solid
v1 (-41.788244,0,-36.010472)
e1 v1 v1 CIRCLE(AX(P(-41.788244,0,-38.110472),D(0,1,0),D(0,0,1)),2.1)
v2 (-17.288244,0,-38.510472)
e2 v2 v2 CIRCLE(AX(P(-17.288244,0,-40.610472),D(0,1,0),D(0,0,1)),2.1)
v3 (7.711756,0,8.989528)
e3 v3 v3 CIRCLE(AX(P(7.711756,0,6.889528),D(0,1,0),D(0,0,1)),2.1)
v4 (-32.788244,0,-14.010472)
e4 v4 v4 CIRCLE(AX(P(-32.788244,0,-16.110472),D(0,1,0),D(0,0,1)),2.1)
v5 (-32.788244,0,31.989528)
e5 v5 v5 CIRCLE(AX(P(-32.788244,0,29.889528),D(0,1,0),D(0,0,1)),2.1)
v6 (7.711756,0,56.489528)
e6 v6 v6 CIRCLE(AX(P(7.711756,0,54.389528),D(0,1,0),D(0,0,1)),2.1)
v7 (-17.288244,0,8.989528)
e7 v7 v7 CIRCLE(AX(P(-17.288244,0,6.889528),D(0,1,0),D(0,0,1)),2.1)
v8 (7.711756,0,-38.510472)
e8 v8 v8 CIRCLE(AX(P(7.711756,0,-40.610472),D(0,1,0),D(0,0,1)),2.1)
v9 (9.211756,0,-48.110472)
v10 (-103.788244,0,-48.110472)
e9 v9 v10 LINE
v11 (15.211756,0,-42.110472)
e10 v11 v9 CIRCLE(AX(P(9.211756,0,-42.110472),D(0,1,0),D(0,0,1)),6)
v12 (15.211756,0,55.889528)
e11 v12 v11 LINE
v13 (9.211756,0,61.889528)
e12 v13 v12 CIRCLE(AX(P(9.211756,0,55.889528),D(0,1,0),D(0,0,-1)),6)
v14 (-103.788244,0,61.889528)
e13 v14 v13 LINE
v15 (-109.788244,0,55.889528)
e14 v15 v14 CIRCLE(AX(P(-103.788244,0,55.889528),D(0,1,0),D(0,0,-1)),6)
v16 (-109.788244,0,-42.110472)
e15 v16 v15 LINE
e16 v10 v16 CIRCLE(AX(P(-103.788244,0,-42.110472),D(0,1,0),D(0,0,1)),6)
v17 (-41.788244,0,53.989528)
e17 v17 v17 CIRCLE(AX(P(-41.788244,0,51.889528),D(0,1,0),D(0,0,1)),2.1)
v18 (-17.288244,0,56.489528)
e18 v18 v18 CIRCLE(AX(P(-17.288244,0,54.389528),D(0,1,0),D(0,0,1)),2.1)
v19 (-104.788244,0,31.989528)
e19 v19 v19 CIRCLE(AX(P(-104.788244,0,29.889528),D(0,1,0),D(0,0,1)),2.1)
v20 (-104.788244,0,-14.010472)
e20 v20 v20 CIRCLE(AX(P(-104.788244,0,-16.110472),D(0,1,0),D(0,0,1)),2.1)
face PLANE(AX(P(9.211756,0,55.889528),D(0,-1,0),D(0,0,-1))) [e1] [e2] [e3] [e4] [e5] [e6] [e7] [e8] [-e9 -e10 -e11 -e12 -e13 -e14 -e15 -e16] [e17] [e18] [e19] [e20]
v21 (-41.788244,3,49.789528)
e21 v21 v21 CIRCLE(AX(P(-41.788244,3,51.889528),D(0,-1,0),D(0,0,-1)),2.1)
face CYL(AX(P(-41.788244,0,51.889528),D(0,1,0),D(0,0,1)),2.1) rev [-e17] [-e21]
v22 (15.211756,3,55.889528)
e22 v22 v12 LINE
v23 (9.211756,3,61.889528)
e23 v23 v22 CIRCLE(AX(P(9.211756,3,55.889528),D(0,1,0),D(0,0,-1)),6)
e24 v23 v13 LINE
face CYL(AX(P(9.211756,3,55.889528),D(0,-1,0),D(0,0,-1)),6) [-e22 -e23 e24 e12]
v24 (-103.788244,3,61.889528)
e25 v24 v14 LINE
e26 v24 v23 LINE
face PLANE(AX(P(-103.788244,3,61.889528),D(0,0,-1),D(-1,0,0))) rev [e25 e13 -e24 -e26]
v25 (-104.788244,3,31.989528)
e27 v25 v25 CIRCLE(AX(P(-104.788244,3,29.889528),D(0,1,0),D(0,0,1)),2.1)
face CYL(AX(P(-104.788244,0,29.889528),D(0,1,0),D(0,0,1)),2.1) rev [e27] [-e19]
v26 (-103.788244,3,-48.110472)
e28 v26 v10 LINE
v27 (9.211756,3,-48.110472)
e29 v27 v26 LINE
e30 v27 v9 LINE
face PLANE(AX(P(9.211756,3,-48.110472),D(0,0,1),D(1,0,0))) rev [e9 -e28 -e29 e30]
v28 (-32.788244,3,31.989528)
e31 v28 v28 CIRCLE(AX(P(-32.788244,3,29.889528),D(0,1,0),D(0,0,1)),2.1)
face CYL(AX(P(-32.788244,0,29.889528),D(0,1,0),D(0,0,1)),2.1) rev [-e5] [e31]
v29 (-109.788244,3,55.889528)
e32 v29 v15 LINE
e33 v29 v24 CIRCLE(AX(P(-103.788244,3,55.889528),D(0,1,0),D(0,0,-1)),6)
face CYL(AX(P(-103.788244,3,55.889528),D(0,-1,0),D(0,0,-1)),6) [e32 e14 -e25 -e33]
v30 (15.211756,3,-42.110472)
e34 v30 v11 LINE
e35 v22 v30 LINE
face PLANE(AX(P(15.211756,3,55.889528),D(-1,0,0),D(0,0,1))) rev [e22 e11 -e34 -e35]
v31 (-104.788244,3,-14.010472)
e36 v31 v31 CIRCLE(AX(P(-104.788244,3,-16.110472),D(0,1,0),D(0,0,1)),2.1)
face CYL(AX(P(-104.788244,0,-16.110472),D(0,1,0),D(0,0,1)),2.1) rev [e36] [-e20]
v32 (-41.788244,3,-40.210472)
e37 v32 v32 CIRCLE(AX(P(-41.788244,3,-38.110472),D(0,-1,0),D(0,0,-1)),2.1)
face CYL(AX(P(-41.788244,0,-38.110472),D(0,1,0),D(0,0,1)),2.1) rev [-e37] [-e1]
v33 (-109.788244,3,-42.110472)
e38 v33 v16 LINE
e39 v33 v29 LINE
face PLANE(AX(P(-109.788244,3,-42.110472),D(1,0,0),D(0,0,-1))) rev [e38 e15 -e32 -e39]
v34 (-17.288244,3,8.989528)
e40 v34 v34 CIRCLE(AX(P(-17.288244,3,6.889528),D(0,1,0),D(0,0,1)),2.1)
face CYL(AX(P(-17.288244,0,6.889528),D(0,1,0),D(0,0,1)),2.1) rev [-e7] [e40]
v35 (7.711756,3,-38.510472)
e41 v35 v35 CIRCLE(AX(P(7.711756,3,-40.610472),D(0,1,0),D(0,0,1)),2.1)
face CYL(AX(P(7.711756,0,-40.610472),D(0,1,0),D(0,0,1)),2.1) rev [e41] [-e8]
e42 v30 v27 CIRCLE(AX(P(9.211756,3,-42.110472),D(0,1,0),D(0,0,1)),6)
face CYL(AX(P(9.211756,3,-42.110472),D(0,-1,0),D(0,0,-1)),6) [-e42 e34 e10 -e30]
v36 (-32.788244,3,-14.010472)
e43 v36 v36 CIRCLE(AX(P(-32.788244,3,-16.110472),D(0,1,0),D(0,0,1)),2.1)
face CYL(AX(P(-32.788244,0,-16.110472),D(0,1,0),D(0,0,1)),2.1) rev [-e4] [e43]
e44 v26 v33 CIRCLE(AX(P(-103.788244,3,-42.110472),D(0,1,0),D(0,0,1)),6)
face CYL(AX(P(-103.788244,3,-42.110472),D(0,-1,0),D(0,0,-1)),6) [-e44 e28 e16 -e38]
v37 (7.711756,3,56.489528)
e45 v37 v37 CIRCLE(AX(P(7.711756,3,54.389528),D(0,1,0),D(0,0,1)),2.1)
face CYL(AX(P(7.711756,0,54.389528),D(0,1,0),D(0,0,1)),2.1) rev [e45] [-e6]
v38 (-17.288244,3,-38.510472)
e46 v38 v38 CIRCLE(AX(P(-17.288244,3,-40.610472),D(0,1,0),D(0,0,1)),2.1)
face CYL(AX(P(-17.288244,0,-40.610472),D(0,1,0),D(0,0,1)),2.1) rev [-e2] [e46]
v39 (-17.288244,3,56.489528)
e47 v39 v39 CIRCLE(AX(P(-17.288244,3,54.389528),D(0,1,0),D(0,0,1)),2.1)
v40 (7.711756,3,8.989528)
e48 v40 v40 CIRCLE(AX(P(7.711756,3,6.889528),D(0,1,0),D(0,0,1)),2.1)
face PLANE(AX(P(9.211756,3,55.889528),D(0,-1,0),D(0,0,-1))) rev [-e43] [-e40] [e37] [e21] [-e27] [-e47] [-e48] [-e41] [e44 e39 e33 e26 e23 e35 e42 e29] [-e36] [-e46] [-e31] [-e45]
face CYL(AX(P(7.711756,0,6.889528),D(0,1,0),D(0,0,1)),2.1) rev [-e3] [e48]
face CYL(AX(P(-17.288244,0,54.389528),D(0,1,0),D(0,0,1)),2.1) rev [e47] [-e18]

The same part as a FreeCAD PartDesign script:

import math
import FreeCAD as App
import Part
import Sketcher
Q = App.Units.Quantity

doc = App.newDocument("Part")
params = doc.addObject("Spreadsheet::Sheet", "Params")
for row, (alias, value) in enumerate([
    ("sketch1_radius", "6 mm"),
    ("sketch1_width", "113 mm"),
    ("sketch1_height", "98 mm"),
    ("pad1_length", "3 mm"),
    ("sketch2_diameter", "4.2 mm"),
    ("sketch3_diameter", "4.2 mm"),
    ("sketch4_diameter", "4.2 mm"),
], start=1):
    params.set(f"A{row}", alias)
    params.set(f"B{row}", "=" + value)
    params.setAlias(f"B{row}", alias)

body = doc.addObject("PartDesign::Body", "Body")

# Sketch on XZ plane
sketch1 = doc.addObject("Sketcher::SketchObject", "Sketch")
body.addObject(sketch1)
sketch1.AttachmentSupport = (doc.XZ_Plane, [""])
sketch1.MapMode = "FlatFace"
sketch1.addGeometry(Part.LineSegment(App.Vector(-109.788244, -42.110472, 0), App.Vector(-109.788244, 55.889528, 0)), False)
sketch1.addGeometry(Part.ArcOfCircle(Part.Circle(App.Vector(-103.788244, 55.889528, 0), App.Vector(0, 0, 1), 6), math.radians(90), math.radians(180)), False)
sketch1.addGeometry(Part.LineSegment(App.Vector(-103.788244, 61.889528, 0), App.Vector(9.211756, 61.889528, 0)), False)
sketch1.addGeometry(Part.ArcOfCircle(Part.Circle(App.Vector(9.211756, 55.889528, 0), App.Vector(0, 0, 1), 6), math.radians(0), math.radians(90)), False)
sketch1.addGeometry(Part.LineSegment(App.Vector(15.211756, 55.889528, 0), App.Vector(15.211756, -42.110472, 0)), False)
sketch1.addGeometry(Part.ArcOfCircle(Part.Circle(App.Vector(9.211756, -42.110472, 0), App.Vector(0, 0, 1), 6), math.radians(-90), math.radians(0)), False)
sketch1.addGeometry(Part.LineSegment(App.Vector(9.211756, -48.110472, 0), App.Vector(-103.788244, -48.110472, 0)), False)
sketch1.addGeometry(Part.ArcOfCircle(Part.Circle(App.Vector(-103.788244, -42.110472, 0), App.Vector(0, 0, 1), 6), math.radians(180), math.radians(270)), False)
sketch1.addConstraint(Sketcher.Constraint("Tangent", 0, 2, 1, 2))
sketch1.addConstraint(Sketcher.Constraint("Tangent", 1, 1, 2, 1))
sketch1.addConstraint(Sketcher.Constraint("Tangent", 2, 2, 3, 2))
sketch1.addConstraint(Sketcher.Constraint("Tangent", 3, 1, 4, 1))
sketch1.addConstraint(Sketcher.Constraint("Tangent", 4, 2, 5, 2))
sketch1.addConstraint(Sketcher.Constraint("Tangent", 5, 1, 6, 1))
sketch1.addConstraint(Sketcher.Constraint("Tangent", 6, 2, 7, 2))
sketch1.addConstraint(Sketcher.Constraint("Tangent", 7, 1, 0, 1))
sketch1.addConstraint(Sketcher.Constraint("Vertical", 0))
sketch1.addConstraint(Sketcher.Constraint("Horizontal", 2))
sketch1.addConstraint(Sketcher.Constraint("Vertical", 4))
sketch1.addConstraint(Sketcher.Constraint("Horizontal", 6))
sketch1.addConstraint(Sketcher.Constraint("Equal", 1, 3))
sketch1.addConstraint(Sketcher.Constraint("Equal", 3, 5))
sketch1.addConstraint(Sketcher.Constraint("Equal", 5, 7))
sketch1.addConstraint(Sketcher.Constraint("Radius", 1, Q("6 mm")))
sketch1.addConstraint(Sketcher.Constraint("DistanceX", 2, 1, 2, 2, Q("113 mm")))
sketch1.addConstraint(Sketcher.Constraint("DistanceY", 0, 1, 0, 2, Q("98 mm")))
sketch1.addConstraint(Sketcher.Constraint("DistanceX", 1, 3, -1, 1, Q("103.788244 mm")))
sketch1.addConstraint(Sketcher.Constraint("DistanceY", -1, 1, 1, 3, Q("55.889528 mm")))
sketch1.setExpression("Constraints[15]", "Params.sketch1_radius")
sketch1.setExpression("Constraints[16]", "Params.sketch1_width")
sketch1.setExpression("Constraints[17]", "Params.sketch1_height")
pad1 = doc.addObject("PartDesign::Pad", "Pad")
body.addObject(pad1)
pad1.Profile = sketch1
pad1.setExpression("Length", "Params.pad1_length")
pad1.Reversed = True

# Sketch on XZ plane
sketch2 = doc.addObject("Sketcher::SketchObject", "Sketch001")
body.addObject(sketch2)
sketch2.AttachmentSupport = (doc.XZ_Plane, [""])
sketch2.MapMode = "FlatFace"
sketch2.AttachmentOffset = App.Placement(App.Vector(0, 0, -3), App.Rotation())
sketch2.addGeometry(Part.Circle(App.Vector(-17.288244, 54.389528, 0), App.Vector(0, 0, 1), 2.1), False)
sketch2.addGeometry(Part.Circle(App.Vector(7.711756, 54.389528, 0), App.Vector(0, 0, 1), 2.1), False)
sketch2.addGeometry(Part.Circle(App.Vector(-17.288244, 6.889528, 0), App.Vector(0, 0, 1), 2.1), False)
sketch2.addGeometry(Part.Circle(App.Vector(7.711756, 6.889528, 0), App.Vector(0, 0, 1), 2.1), False)
sketch2.addGeometry(Part.Circle(App.Vector(-17.288244, -40.610472, 0), App.Vector(0, 0, 1), 2.1), False)
sketch2.addGeometry(Part.Circle(App.Vector(7.711756, -40.610472, 0), App.Vector(0, 0, 1), 2.1), False)
sketch2.addConstraint(Sketcher.Constraint("Equal", 0, 1))
sketch2.addConstraint(Sketcher.Constraint("Equal", 1, 2))
sketch2.addConstraint(Sketcher.Constraint("Equal", 2, 3))
sketch2.addConstraint(Sketcher.Constraint("Equal", 3, 4))
sketch2.addConstraint(Sketcher.Constraint("Equal", 4, 5))
sketch2.addConstraint(Sketcher.Constraint("Horizontal", 0, 3, 1, 3))
sketch2.addConstraint(Sketcher.Constraint("Horizontal", 2, 3, 3, 3))
sketch2.addConstraint(Sketcher.Constraint("Horizontal", 4, 3, 5, 3))
sketch2.addConstraint(Sketcher.Constraint("Vertical", 0, 3, 2, 3))
sketch2.addConstraint(Sketcher.Constraint("Vertical", 1, 3, 3, 3))
sketch2.addConstraint(Sketcher.Constraint("Vertical", 2, 3, 4, 3))
sketch2.addConstraint(Sketcher.Constraint("Vertical", 3, 3, 5, 3))
sketch2.addConstraint(Sketcher.Constraint("Diameter", 0, Q("4.2 mm")))
sketch2.addConstraint(Sketcher.Constraint("DistanceX", 0, 3, 1, 3, Q("25 mm")))
sketch2.addConstraint(Sketcher.Constraint("DistanceY", 4, 3, 0, 3, Q("95 mm")))
sketch2.addConstraint(Sketcher.Constraint("DistanceY", 2, 3, 0, 3, Q("47.5 mm")))
sketch2.addConstraint(Sketcher.Constraint("DistanceX", 0, 3, -1, 1, Q("17.288244 mm")))
sketch2.addConstraint(Sketcher.Constraint("DistanceY", -1, 1, 0, 3, Q("54.389528 mm")))
sketch2.setExpression("Constraints[12]", "Params.sketch2_diameter")
pocket1 = doc.addObject("PartDesign::Pocket", "Pocket")
body.addObject(pocket1)
pocket1.Profile = sketch2
pocket1.Type = "ThroughAll"
pocket1.Reversed = True

# Sketch on XZ plane
sketch3 = doc.addObject("Sketcher::SketchObject", "Sketch002")
body.addObject(sketch3)
sketch3.AttachmentSupport = (doc.XZ_Plane, [""])
sketch3.MapMode = "FlatFace"
sketch3.AttachmentOffset = App.Placement(App.Vector(0, 0, -3), App.Rotation())
sketch3.addGeometry(Part.Circle(App.Vector(-104.788244, 29.889528, 0), App.Vector(0, 0, 1), 2.1), False)
sketch3.addGeometry(Part.Circle(App.Vector(-104.788244, -16.110472, 0), App.Vector(0, 0, 1), 2.1), False)
sketch3.addGeometry(Part.Circle(App.Vector(-32.788244, -16.110472, 0), App.Vector(0, 0, 1), 2.1), False)
sketch3.addGeometry(Part.Circle(App.Vector(-32.788244, 29.889528, 0), App.Vector(0, 0, 1), 2.1), False)
sketch3.addConstraint(Sketcher.Constraint("Equal", 0, 1))
sketch3.addConstraint(Sketcher.Constraint("Equal", 1, 2))
sketch3.addConstraint(Sketcher.Constraint("Equal", 2, 3))
sketch3.addConstraint(Sketcher.Constraint("Horizontal", 1, 3, 2, 3))
sketch3.addConstraint(Sketcher.Constraint("Horizontal", 0, 3, 3, 3))
sketch3.addConstraint(Sketcher.Constraint("Vertical", 0, 3, 1, 3))
sketch3.addConstraint(Sketcher.Constraint("Vertical", 2, 3, 3, 3))
sketch3.addConstraint(Sketcher.Constraint("Diameter", 0, Q("4.2 mm")))
sketch3.addConstraint(Sketcher.Constraint("DistanceY", 1, 3, 0, 3, Q("46 mm")))
sketch3.addConstraint(Sketcher.Constraint("DistanceX", 1, 3, 2, 3, Q("72 mm")))
sketch3.addConstraint(Sketcher.Constraint("DistanceX", 0, 3, -1, 1, Q("104.788244 mm")))
sketch3.addConstraint(Sketcher.Constraint("DistanceY", -1, 1, 0, 3, Q("29.889528 mm")))
sketch3.setExpression("Constraints[7]", "Params.sketch3_diameter")
pocket2 = doc.addObject("PartDesign::Pocket", "Pocket001")
body.addObject(pocket2)
pocket2.Profile = sketch3
pocket2.Type = "ThroughAll"
pocket2.Reversed = True

# Sketch on XZ plane
sketch4 = doc.addObject("Sketcher::SketchObject", "Sketch003")
body.addObject(sketch4)
sketch4.AttachmentSupport = (doc.XZ_Plane, [""])
sketch4.MapMode = "FlatFace"
sketch4.AttachmentOffset = App.Placement(App.Vector(0, 0, -3), App.Rotation())
sketch4.addGeometry(Part.Circle(App.Vector(-41.788244, 51.889528, 0), App.Vector(0, 0, 1), 2.1), False)
sketch4.addGeometry(Part.Circle(App.Vector(-41.788244, -38.110472, 0), App.Vector(0, 0, 1), 2.1), False)
sketch4.addConstraint(Sketcher.Constraint("Equal", 0, 1))
sketch4.addConstraint(Sketcher.Constraint("Vertical", 0, 3, 1, 3))
sketch4.addConstraint(Sketcher.Constraint("Diameter", 0, Q("4.2 mm")))
sketch4.addConstraint(Sketcher.Constraint("DistanceY", 1, 3, 0, 3, Q("90 mm")))
sketch4.addConstraint(Sketcher.Constraint("DistanceX", 0, 3, -1, 1, Q("41.788244 mm")))
sketch4.addConstraint(Sketcher.Constraint("DistanceY", -1, 1, 0, 3, Q("51.889528 mm")))
sketch4.setExpression("Constraints[2]", "Params.sketch4_diameter")
pocket3 = doc.addObject("PartDesign::Pocket", "Pocket002")
body.addObject(pocket3)
pocket3.Profile = sketch4
pocket3.Type = "ThroughAll"
pocket3.Midplane = True

doc.recompute()
